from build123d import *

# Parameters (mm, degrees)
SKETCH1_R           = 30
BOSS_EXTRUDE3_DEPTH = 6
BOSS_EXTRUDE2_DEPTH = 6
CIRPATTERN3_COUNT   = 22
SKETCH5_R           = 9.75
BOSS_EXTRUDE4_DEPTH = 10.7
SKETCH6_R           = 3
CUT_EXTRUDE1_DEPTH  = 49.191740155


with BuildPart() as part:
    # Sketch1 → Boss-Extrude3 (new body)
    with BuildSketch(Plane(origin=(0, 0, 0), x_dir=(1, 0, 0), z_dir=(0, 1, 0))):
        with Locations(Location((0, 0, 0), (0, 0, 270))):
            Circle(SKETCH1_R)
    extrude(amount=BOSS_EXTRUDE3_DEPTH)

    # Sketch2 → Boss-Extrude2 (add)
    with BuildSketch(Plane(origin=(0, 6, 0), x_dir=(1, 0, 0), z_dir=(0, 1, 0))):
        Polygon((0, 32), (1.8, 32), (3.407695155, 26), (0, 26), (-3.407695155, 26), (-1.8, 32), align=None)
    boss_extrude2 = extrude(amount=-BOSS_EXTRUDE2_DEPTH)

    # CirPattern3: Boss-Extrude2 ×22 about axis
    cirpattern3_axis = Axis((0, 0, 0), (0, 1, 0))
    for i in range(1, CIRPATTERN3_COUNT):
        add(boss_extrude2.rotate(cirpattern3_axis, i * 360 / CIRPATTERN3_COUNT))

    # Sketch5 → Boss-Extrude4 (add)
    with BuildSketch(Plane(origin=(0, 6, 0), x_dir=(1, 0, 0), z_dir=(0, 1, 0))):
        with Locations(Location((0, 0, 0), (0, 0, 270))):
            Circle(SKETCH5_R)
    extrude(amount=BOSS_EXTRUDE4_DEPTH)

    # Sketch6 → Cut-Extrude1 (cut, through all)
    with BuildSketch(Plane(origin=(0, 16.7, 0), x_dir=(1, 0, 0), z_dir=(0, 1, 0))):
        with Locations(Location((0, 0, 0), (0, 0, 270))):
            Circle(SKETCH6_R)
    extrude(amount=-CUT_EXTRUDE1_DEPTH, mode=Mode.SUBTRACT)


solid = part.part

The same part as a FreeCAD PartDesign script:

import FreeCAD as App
import Part
import Sketcher
from FreeCAD import Vector
Q = App.Units.Quantity


def add_polygon(sketch, points):
    """Adds a closed chain of lines whose ends are joined by coincident constraints."""
    first, n = sketch.GeometryCount, len(points)
    for a, b in zip(points, points[1:] + points[:1]):
        sketch.addGeometry(Part.LineSegment(App.Vector(*a, 0), App.Vector(*b, 0)), False)
    for i in range(n):
        sketch.addConstraint(Sketcher.Constraint("Coincident", first + i, 2, first + (i + 1) % n, 1))

doc = App.newDocument("Part")
body = doc.addObject("PartDesign::Body", "Body")

# Sketch on XZ plane
sketch1 = body.newObject("Sketcher::SketchObject", "Sketch")
sketch1.AttachmentSupport = (doc.getObject("XZ_Plane"), [""])
sketch1.MapMode = "FlatFace"
sketch1.addGeometry(Part.Circle(Vector(0, 0, 0), Vector(0, 0, 1), 30), False)
sketch1.addConstraint(Sketcher.Constraint("Coincident", 0, 3, -1, 1))
sketch1.addConstraint(Sketcher.Constraint("Diameter", 0, 60.0))
pad1 = body.newObject("PartDesign::Pad", "Pad")
pad1.Profile = sketch1
pad1.Length = 6
pad1.Reversed = True

# Sketch on XZ plane
sketch2 = body.newObject("Sketcher::SketchObject", "Sketch001")
sketch2.AttachmentSupport = (doc.getObject("XZ_Plane"), [""])
sketch2.MapMode = "FlatFace"
sketch2.AttachmentOffset = App.Placement(Vector(0, 0, -6), App.Rotation())
add_polygon(sketch2, [(1.8, -32), (-1.8, -32), (-3.4, -26), (3.4, -26)])  # lines 0-3
sketch2.addConstraint(Sketcher.Constraint("Horizontal", 0))
sketch2.addConstraint(Sketcher.Constraint("Horizontal", 2))
sketch2.addConstraint(Sketcher.Constraint("Equal", 1, 3))
sketch2.addConstraint(Sketcher.Constraint("Angle", 1, Q("105 deg")))
sketch2.addConstraint(Sketcher.Constraint("DistanceX", 0, 2, 0, 1, 3.6))
sketch2.addConstraint(Sketcher.Constraint("DistanceY", 0, 2, -1, 1, 32.0))
sketch2.addConstraint(Sketcher.Constraint("DistanceY", 1, 2, -1, 1, 26.0))
sketch2.addConstraint(Sketcher.Constraint("DistanceX", 0, 2, -1, 1, 1.8))
pad2 = body.newObject("PartDesign::Pad", "Pad001")
pad2.Profile = sketch2
pad2.Length = 6
doc.recompute()

polarpattern = body.newObject("PartDesign::PolarPattern", "PolarPattern")
polarpattern.Originals = [pad2]
polarpattern.Axis = (doc.getObject("Y_Axis"), [""])
polarpattern.Angle = 360
polarpattern.Occurrences = 22
body.Tip = polarpattern

# Sketch on XZ plane
sketch3 = body.newObject("Sketcher::SketchObject", "Sketch002")
sketch3.AttachmentSupport = (doc.getObject("XZ_Plane"), [""])
sketch3.MapMode = "FlatFace"
sketch3.AttachmentOffset = App.Placement(Vector(0, 0, -6), App.Rotation())
sketch3.addGeometry(Part.Circle(Vector(0, 0, 0), Vector(0, 0, 1), 10), False)
sketch3.addConstraint(Sketcher.Constraint("Coincident", 0, 3, -1, 1))
sketch3.addConstraint(Sketcher.Constraint("Diameter", 0, 19.5))
pad3 = body.newObject("PartDesign::Pad", "Pad002")
pad3.Profile = sketch3
pad3.Length = 10.7
pad3.Reversed = True

# Sketch on XZ plane
sketch4 = body.newObject("Sketcher::SketchObject", "Sketch003")
sketch4.AttachmentSupport = (doc.getObject("XZ_Plane"), [""])
sketch4.MapMode = "FlatFace"
sketch4.AttachmentOffset = App.Placement(Vector(0, 0, -16.7), App.Rotation())
sketch4.addGeometry(Part.Circle(Vector(0, 0, 0), Vector(0, 0, 1), 3), False)
sketch4.addConstraint(Sketcher.Constraint("Coincident", 0, 3, -1, 1))
sketch4.addConstraint(Sketcher.Constraint("Diameter", 0, 6.0))
pocket1 = body.newObject("PartDesign::Pocket", "Pocket")
pocket1.Profile = sketch4
pocket1.Type = "ThroughAll"
pocket1.Reversed = True

doc.recompute()
